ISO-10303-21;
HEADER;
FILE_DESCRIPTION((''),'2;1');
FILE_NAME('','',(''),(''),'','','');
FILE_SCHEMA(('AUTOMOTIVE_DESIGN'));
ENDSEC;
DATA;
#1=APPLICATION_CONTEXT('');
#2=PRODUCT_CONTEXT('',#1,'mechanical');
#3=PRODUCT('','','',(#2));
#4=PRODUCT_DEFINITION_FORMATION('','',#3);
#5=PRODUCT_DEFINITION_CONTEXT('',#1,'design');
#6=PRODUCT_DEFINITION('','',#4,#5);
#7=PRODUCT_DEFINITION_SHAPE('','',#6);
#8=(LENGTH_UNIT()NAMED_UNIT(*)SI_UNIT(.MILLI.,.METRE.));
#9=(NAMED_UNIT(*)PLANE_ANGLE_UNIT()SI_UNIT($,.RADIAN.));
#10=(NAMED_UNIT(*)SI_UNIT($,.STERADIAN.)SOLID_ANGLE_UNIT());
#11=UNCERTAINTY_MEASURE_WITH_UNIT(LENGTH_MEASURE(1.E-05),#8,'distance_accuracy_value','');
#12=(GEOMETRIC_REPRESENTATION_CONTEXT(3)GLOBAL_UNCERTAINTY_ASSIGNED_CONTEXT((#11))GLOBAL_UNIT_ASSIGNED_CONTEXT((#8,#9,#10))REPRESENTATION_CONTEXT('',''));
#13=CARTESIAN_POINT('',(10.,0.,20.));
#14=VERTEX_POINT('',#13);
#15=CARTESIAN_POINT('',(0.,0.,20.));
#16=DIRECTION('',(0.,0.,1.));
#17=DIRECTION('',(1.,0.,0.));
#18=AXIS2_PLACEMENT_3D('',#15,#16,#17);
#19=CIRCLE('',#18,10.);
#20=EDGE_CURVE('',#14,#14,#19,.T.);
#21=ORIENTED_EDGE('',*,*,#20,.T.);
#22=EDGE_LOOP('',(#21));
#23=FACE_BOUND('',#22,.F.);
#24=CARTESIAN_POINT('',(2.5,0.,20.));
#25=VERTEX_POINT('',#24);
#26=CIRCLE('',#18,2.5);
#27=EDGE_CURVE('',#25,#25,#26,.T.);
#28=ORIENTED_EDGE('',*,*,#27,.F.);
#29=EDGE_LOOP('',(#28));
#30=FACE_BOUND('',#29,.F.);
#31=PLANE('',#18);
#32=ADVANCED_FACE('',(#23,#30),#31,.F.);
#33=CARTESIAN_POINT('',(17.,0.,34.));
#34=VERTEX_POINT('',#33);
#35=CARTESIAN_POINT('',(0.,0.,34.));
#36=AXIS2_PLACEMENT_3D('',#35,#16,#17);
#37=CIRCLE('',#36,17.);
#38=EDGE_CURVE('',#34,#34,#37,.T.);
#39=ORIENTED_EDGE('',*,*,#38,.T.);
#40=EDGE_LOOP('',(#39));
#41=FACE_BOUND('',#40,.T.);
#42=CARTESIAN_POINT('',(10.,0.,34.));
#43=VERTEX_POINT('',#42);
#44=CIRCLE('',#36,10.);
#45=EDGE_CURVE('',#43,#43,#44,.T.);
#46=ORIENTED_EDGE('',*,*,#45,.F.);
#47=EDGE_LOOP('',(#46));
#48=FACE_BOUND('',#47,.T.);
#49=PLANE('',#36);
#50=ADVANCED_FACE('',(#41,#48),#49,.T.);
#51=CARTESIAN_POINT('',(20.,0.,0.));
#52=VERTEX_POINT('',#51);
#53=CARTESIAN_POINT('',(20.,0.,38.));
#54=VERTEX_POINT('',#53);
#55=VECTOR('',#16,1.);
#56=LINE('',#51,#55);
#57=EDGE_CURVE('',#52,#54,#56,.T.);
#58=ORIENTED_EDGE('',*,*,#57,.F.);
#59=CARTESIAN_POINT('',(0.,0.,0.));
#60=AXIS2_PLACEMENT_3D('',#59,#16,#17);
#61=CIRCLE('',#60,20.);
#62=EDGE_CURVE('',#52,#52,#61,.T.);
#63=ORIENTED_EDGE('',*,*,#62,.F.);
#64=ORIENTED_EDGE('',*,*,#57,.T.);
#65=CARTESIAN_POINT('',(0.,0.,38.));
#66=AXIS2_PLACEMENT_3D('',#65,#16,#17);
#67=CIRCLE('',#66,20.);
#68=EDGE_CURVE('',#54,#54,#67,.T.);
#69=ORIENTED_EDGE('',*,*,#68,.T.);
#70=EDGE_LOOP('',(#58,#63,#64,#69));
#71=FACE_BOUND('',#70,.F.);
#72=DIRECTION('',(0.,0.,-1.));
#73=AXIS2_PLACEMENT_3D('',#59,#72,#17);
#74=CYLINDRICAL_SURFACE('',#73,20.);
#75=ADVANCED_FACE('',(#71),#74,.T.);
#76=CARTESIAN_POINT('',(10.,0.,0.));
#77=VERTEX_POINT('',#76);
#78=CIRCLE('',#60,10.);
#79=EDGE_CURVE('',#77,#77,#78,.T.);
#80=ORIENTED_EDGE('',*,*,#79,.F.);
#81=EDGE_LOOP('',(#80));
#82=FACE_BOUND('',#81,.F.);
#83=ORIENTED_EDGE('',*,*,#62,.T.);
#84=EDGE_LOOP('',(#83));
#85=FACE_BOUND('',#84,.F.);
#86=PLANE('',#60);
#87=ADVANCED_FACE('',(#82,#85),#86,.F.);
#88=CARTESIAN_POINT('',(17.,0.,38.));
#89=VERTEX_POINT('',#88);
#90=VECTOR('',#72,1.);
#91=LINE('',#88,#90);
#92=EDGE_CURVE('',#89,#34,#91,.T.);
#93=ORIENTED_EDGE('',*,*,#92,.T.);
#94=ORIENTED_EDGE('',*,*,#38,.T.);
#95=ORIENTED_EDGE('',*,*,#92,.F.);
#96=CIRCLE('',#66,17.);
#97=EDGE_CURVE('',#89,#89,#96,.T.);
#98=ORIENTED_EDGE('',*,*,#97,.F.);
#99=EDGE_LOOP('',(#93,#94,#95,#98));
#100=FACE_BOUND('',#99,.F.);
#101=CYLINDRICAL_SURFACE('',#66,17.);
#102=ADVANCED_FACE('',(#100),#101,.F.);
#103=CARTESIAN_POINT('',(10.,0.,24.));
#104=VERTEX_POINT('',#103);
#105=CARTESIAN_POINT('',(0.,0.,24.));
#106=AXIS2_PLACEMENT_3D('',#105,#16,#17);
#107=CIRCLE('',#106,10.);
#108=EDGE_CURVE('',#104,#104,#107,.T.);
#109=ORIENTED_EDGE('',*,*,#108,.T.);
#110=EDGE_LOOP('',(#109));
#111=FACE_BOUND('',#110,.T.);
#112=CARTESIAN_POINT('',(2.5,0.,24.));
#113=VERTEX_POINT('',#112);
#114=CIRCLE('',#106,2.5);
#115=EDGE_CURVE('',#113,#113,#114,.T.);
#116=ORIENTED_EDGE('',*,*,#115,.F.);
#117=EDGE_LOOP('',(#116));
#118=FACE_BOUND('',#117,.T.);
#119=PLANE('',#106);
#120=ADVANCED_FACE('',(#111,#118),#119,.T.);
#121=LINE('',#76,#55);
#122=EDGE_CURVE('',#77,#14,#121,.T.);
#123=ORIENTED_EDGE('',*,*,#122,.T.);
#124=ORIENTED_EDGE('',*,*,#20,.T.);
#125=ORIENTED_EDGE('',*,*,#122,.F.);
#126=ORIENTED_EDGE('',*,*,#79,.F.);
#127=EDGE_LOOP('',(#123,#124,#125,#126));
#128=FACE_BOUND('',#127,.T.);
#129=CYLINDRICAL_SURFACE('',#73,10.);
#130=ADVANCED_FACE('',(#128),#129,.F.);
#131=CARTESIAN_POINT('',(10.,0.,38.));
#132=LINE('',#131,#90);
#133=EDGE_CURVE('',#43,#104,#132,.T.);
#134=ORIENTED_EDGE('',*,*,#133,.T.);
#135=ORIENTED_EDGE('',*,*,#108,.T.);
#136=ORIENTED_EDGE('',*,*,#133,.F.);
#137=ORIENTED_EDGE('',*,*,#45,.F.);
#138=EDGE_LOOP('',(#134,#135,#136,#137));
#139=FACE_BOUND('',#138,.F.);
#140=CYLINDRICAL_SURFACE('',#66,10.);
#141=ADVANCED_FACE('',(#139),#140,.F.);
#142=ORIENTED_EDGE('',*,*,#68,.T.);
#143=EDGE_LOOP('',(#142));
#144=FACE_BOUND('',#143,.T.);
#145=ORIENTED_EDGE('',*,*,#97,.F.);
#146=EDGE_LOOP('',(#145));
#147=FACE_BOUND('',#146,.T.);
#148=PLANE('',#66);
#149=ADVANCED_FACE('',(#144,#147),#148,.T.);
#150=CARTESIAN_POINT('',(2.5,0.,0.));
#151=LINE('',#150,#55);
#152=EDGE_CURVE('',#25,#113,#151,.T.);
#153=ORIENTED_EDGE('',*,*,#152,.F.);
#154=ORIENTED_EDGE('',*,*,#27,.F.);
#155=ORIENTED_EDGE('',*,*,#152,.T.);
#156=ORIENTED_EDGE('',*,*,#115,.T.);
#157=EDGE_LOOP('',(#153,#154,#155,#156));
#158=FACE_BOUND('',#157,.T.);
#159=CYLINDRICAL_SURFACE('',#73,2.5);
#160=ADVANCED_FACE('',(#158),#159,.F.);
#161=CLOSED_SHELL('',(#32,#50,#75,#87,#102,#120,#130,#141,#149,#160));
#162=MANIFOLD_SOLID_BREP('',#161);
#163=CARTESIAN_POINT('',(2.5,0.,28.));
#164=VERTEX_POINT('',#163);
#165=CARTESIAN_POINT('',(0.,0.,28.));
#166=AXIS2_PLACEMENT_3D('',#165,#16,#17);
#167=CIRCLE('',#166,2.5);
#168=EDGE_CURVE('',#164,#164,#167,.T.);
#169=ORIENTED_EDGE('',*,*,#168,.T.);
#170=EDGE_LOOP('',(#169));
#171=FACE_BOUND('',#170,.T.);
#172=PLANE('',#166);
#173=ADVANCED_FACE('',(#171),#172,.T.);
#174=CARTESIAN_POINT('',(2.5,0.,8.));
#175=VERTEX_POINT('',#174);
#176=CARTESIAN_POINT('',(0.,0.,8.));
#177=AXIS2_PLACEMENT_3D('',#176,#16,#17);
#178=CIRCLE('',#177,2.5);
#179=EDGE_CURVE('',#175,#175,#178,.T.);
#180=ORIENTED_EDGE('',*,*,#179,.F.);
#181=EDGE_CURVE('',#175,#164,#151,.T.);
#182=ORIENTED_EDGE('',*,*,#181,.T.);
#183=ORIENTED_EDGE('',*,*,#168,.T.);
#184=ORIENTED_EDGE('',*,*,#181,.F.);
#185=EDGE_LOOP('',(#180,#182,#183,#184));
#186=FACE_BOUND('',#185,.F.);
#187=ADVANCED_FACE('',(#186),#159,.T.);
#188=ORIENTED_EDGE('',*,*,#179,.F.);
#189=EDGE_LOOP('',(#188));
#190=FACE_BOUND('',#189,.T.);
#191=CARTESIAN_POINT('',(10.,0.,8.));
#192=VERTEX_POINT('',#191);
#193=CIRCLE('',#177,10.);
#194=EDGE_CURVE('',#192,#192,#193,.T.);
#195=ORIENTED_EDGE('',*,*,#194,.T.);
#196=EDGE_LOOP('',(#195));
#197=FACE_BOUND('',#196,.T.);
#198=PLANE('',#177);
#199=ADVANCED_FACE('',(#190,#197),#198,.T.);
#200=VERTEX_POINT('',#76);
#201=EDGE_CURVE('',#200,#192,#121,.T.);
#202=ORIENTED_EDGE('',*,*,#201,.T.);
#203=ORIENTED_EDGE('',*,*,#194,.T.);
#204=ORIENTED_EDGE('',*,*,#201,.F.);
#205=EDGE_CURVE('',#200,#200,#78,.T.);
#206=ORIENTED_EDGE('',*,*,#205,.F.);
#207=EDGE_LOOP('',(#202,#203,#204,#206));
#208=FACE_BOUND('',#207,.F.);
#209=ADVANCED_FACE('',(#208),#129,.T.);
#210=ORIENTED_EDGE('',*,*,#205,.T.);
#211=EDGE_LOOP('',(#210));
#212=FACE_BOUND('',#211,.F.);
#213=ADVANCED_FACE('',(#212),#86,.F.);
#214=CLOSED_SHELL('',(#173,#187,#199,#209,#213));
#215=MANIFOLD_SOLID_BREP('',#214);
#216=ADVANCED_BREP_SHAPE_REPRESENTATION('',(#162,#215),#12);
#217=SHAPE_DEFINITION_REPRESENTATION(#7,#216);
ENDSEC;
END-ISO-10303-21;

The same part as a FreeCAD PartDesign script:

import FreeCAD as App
import Part
import Sketcher

V = App.Vector
Q = App.Units.Quantity

doc = App.newDocument("Part")
body = doc.addObject("PartDesign::Body", "Body")

sketch1 = body.newObject("Sketcher::SketchObject", "Sketch")
sketch1.AttachmentSupport = (doc.getObject("XY_Plane"), [""])
sketch1.MapMode = "FlatFace"
sketch1.addGeometry([
    Part.Circle(V(0, 0, 0), V(0, 0, 1), 20),
    Part.Circle(V(0, 0, 0), V(0, 0, 1), 2.5),
], False)
sketch1.addConstraint([
    Sketcher.Constraint("Coincident", 0, 3, -1, 1),
    Sketcher.Constraint("Coincident", 1, 3, -1, 1),
    Sketcher.Constraint("Diameter", 0, Q("40 mm")),
    Sketcher.Constraint("Diameter", 1, Q("5 mm")),
])
pad1 = body.newObject("PartDesign::Pad", "Pad")
pad1.Profile = sketch1
pad1.Length = 38

sketch2 = body.newObject("Sketcher::SketchObject", "Sketch001")
sketch2.AttachmentSupport = (doc.getObject("XY_Plane"), [""])
sketch2.MapMode = "FlatFace"
sketch2.addGeometry([
    Part.Circle(V(0, 0, 0), V(0, 0, 1), 10),
    Part.Circle(V(0, 0, 0), V(0, 0, 1), 2.5),
], False)
sketch2.addConstraint([
    Sketcher.Constraint("Coincident", 0, 3, -1, 1),
    Sketcher.Constraint("Coincident", 1, 3, -1, 1),
    Sketcher.Constraint("Diameter", 0, Q("20 mm")),
    Sketcher.Constraint("Diameter", 1, Q("5 mm")),
])
pocket1 = body.newObject("PartDesign::Pocket", "Pocket")
pocket1.Profile = sketch2
pocket1.Length = 20
pocket1.Reversed = True

sketch3 = body.newObject("Sketcher::SketchObject", "Sketch002")
sketch3.AttachmentSupport = (doc.getObject("XY_Plane"), [""])
sketch3.MapMode = "FlatFace"
sketch3.AttachmentOffset = App.Placement(V(0, 0, 38), App.Rotation())
sketch3.addGeometry([
    Part.Circle(V(0, 0, 0), V(0, 0, 1), 10),
    Part.Circle(V(0, 0, 0), V(0, 0, 1), 2.5),
], False)
sketch3.addConstraint([
    Sketcher.Constraint("Coincident", 0, 3, -1, 1),
    Sketcher.Constraint("Coincident", 1, 3, -1, 1),
    Sketcher.Constraint("Diameter", 0, Q("20 mm")),
    Sketcher.Constraint("Diameter", 1, Q("5 mm")),
])
pocket2 = body.newObject("PartDesign::Pocket", "Pocket001")
pocket2.Profile = sketch3
pocket2.Length = 14

sketch4 = body.newObject("Sketcher::SketchObject", "Sketch003")
sketch4.AttachmentSupport = (doc.getObject("XY_Plane"), [""])
sketch4.MapMode = "FlatFace"
sketch4.AttachmentOffset = App.Placement(V(0, 0, 38), App.Rotation())
sketch4.addGeometry([
    Part.Circle(V(0, 0, 0), V(0, 0, 1), 17),
    Part.Circle(V(0, 0, 0), V(0, 0, 1), 10),
], False)
sketch4.addConstraint([
    Sketcher.Constraint("Coincident", 0, 3, -1, 1),
    Sketcher.Constraint("Coincident", 1, 3, -1, 1),
    Sketcher.Constraint("Diameter", 0, Q("34 mm")),
    Sketcher.Constraint("Diameter", 1, Q("20 mm")),
])
pocket3 = body.newObject("PartDesign::Pocket", "Pocket002")
pocket3.Profile = sketch4
pocket3.Length = 4
body2 = doc.addObject("PartDesign::Body", "Body001")

sketch5 = body2.newObject("Sketcher::SketchObject", "Sketch004")
sketch5.AttachmentSupport = (doc.getObject("XY_Plane001"), [""])
sketch5.MapMode = "FlatFace"
sketch5.addGeometry([
    Part.Circle(V(0, 0, 0), V(0, 0, 1), 10),
    Part.Circle(V(0, 0, 0), V(0, 0, 1), 2.5),
], False)
sketch5.addConstraint([
    Sketcher.Constraint("Coincident", 0, 3, -1, 1),
    Sketcher.Constraint("Coincident", 1, 3, -1, 1),
    Sketcher.Constraint("Diameter", 0, Q("20 mm")),
    Sketcher.Constraint("Diameter", 1, Q("5 mm")),
])
pad2 = body2.newObject("PartDesign::Pad", "Pad001")
pad2.Profile = sketch5
pad2.Length = 8

sketch6 = body2.newObject("Sketcher::SketchObject", "Sketch005")
sketch6.AttachmentSupport = (doc.getObject("XY_Plane001"), [""])
sketch6.MapMode = "FlatFace"
sketch6.addGeometry(Part.Circle(V(0, 0, 0), V(0, 0, 1), 2.5), False)
sketch6.addConstraint([
    Sketcher.Constraint("Coincident", 0, 3, -1, 1),
    Sketcher.Constraint("Diameter", 0, Q("5 mm")),
])
pad3 = body2.newObject("PartDesign::Pad", "Pad002")
pad3.Profile = sketch6
pad3.Length = 28

doc.recompute()
